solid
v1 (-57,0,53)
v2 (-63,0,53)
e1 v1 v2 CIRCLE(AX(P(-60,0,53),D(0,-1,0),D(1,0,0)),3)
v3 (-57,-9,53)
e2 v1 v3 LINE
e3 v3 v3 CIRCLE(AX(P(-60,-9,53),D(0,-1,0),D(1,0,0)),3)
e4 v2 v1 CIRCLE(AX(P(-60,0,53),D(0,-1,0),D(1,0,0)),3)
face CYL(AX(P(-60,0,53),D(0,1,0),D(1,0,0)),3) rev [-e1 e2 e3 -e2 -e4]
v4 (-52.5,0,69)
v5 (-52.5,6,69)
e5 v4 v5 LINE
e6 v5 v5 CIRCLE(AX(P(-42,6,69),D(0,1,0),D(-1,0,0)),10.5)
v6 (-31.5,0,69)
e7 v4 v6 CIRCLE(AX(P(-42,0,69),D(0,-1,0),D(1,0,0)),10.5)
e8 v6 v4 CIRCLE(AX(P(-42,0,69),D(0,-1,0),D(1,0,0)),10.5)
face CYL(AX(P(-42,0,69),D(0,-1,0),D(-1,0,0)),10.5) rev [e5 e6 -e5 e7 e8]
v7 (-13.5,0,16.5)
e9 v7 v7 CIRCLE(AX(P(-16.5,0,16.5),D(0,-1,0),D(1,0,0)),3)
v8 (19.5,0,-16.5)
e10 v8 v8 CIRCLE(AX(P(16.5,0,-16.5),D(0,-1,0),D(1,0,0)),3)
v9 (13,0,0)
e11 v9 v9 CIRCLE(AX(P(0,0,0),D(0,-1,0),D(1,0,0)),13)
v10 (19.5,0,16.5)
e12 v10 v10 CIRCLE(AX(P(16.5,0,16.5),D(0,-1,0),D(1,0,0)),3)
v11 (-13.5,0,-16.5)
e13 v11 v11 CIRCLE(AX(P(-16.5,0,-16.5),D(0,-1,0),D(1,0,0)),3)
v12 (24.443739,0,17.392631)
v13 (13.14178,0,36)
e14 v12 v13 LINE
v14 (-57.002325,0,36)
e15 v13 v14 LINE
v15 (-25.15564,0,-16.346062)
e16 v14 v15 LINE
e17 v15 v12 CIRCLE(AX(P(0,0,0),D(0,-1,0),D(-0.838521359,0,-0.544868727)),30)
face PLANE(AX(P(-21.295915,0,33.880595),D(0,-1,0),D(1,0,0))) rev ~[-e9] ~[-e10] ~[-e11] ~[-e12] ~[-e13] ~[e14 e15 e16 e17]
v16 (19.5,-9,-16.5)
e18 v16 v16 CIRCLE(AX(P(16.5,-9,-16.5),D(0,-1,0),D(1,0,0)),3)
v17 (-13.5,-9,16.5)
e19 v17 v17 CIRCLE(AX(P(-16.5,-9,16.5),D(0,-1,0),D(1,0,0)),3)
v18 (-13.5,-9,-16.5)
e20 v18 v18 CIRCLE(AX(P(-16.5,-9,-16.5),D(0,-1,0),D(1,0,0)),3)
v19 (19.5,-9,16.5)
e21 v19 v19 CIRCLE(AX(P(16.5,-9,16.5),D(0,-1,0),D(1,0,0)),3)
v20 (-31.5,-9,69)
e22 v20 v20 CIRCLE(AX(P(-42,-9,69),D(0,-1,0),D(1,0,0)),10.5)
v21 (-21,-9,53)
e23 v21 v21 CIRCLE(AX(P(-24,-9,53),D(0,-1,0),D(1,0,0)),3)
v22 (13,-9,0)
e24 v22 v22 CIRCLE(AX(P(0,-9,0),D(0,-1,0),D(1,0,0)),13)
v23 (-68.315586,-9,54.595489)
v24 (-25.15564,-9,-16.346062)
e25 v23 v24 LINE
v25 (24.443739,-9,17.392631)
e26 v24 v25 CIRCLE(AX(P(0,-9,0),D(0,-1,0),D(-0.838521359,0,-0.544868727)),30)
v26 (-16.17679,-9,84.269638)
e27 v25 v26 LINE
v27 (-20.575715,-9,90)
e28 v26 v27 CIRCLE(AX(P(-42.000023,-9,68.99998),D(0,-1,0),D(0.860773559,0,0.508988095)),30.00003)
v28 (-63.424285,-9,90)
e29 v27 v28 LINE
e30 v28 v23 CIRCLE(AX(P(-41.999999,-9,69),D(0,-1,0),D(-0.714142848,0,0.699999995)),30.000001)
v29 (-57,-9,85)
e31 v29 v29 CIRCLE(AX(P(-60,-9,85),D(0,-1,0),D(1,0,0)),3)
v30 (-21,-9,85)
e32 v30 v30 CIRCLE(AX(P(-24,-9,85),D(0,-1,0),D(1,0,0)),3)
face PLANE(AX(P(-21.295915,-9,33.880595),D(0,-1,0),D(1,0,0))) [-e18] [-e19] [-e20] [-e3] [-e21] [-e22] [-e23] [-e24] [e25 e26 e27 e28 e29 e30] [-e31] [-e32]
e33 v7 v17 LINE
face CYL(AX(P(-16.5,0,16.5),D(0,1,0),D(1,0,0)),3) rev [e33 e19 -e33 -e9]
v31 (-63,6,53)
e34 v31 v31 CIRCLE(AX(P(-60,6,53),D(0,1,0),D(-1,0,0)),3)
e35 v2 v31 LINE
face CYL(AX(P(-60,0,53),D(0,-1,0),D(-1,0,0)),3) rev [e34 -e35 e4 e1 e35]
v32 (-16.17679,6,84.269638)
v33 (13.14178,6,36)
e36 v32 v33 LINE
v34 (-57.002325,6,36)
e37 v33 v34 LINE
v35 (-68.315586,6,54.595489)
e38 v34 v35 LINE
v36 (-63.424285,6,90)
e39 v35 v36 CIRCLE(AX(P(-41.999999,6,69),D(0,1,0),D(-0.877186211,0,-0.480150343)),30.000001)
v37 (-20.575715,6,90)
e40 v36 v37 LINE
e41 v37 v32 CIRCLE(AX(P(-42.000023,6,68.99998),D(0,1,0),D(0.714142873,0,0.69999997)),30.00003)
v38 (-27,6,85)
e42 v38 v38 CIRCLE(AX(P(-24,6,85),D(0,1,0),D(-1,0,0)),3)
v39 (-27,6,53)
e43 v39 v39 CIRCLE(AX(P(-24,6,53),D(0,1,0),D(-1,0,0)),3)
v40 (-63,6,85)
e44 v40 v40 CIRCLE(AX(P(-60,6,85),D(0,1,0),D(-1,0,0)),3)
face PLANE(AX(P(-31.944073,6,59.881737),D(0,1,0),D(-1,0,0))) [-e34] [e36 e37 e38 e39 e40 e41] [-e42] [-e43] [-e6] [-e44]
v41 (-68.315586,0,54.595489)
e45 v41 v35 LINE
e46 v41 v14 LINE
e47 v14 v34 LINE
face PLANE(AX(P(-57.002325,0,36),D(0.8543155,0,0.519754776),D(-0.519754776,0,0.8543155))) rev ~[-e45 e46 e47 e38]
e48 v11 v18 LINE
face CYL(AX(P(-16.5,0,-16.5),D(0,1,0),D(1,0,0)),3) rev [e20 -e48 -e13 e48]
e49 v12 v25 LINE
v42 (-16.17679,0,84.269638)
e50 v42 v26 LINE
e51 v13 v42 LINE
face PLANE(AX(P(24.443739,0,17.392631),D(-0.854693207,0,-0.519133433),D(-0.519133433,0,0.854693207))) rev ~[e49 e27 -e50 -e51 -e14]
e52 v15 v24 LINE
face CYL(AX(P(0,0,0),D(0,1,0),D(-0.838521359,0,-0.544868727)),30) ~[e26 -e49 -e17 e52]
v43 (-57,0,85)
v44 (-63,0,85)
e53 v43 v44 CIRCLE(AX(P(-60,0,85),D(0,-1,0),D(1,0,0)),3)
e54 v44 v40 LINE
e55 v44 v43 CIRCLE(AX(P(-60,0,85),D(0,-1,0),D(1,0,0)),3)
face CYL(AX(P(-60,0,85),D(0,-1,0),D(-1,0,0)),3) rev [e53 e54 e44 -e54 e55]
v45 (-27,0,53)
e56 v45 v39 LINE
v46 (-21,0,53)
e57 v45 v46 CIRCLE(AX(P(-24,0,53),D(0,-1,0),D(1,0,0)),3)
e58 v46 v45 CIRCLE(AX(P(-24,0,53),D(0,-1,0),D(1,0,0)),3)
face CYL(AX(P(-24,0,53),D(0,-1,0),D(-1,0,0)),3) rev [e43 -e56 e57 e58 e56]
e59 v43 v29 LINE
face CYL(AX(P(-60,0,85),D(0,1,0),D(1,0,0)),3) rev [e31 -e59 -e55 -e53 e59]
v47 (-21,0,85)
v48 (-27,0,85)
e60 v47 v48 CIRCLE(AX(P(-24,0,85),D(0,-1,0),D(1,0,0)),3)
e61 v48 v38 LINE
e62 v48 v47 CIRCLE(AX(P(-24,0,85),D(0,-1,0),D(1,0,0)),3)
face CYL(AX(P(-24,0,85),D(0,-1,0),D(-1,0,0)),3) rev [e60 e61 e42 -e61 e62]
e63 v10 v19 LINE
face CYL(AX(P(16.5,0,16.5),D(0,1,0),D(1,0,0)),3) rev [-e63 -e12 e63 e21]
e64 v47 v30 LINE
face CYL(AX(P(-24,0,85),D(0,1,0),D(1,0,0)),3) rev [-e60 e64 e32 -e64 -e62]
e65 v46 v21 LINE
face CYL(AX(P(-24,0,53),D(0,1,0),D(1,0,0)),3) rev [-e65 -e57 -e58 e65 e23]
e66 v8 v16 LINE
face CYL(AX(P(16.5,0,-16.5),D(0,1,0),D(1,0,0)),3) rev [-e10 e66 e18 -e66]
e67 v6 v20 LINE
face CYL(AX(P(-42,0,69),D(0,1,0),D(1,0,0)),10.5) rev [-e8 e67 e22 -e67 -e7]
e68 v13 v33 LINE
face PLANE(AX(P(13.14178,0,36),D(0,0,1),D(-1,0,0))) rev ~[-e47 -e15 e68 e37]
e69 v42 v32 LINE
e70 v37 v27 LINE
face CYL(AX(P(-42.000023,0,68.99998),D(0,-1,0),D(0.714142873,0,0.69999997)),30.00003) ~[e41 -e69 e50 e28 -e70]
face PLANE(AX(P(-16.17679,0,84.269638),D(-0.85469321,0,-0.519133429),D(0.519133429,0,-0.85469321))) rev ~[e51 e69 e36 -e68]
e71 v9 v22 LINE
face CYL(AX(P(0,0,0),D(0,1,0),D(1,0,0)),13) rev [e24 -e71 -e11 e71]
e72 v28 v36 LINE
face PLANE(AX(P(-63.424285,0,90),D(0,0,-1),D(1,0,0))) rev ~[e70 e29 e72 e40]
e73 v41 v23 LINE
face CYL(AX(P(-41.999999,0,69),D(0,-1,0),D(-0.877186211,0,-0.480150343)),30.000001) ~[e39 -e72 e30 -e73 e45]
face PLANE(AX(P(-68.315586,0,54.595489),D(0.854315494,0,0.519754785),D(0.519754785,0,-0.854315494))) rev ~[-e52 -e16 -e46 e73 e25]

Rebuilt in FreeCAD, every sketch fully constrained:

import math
import FreeCAD as App
import Part
import Sketcher

V = App.Vector

doc = App.newDocument("Part")
body = doc.addObject("PartDesign::Body", "Body")

# Sketch on XZ plane
sketch1 = doc.addObject("Sketcher::SketchObject", "Sketch")
body.addObject(sketch1)
sketch1.AttachmentSupport = (doc.XZ_Plane, [""])
sketch1.MapMode = "FlatFace"
sketch1.addGeometry([
    Part.LineSegment(V(-68.3, 54.6, 0), V(-25.2, -16.3, 0)),  # 0
    Part.ArcOfCircle(Part.Circle(V(0, 0, 0), V(0, 0, 1), 30), math.radians(-147), math.radians(35)),  # 1
    Part.LineSegment(V(24.4, 17.4, 0), V(-16.2, 84.3, 0)),  # 2
    Part.ArcOfCircle(Part.Circle(V(-42, 69, 0), V(0, 0, 1), 30), math.radians(30.6), math.radians(44.43)),  # 3
    Part.LineSegment(V(-20.6, 90, 0), V(-63.4, 90, 0)),  # 4
    Part.ArcOfCircle(Part.Circle(V(-42, 69, 0), V(0, 0, 1), 30), math.radians(136), math.radians(209)),  # 5
    Part.Circle(V(-16.5, -16.5, 0), V(0, 0, 1), 3),  # 6
    Part.Circle(V(16.5, -16.5, 0), V(0, 0, 1), 3),  # 7
    Part.Circle(V(0, 0, 0), V(0, 0, 1), 13),  # 8
    Part.Circle(V(-16.5, 16.5, 0), V(0, 0, 1), 3),  # 9
    Part.Circle(V(16.5, 16.5, 0), V(0, 0, 1), 3),  # 10
    Part.Circle(V(-60, 53, 0), V(0, 0, 1), 3),  # 11
    Part.Circle(V(-24, 53, 0), V(0, 0, 1), 3),  # 12
    Part.Circle(V(-60, 85, 0), V(0, 0, 1), 3),  # 13
    Part.Circle(V(-42, 69, 0), V(0, 0, 1), 10.5),  # 14
    Part.Circle(V(-24, 85, 0), V(0, 0, 1), 3),  # 15
], False)
sketch1.addConstraint([
    Sketcher.Constraint("Coincident", 0, 2, 1, 1),
    Sketcher.Constraint("Coincident", 1, 2, 2, 1),
    Sketcher.Constraint("Coincident", 2, 2, 3, 1),
    Sketcher.Constraint("Coincident", 3, 2, 4, 1),
    Sketcher.Constraint("Coincident", 4, 2, 5, 1),
    Sketcher.Constraint("Coincident", 5, 2, 0, 1),
    Sketcher.Constraint("Horizontal", 4),
    Sketcher.Constraint("Coincident", 1, 3, -1, 1),
    Sketcher.Constraint("Coincident", 8, 3, -1, 1),
    Sketcher.Constraint("Coincident", 14, 3, 5, 3),
    Sketcher.Constraint("Equal", 1, 5),
    Sketcher.Constraint("Equal", 6, 7),
    Sketcher.Constraint("Equal", 7, 9),
    Sketcher.Constraint("Equal", 9, 10),
    Sketcher.Constraint("Equal", 10, 11),
    Sketcher.Constraint("Equal", 11, 12),
    Sketcher.Constraint("Equal", 12, 13),
    Sketcher.Constraint("Equal", 13, 15),
    Sketcher.Constraint("Symmetric", 7, 3, 9, 3, -1, 1),
    Sketcher.Constraint("Symmetric", 6, 3, 10, 3, -1, 1),
    Sketcher.Constraint("Symmetric", 6, 3, 7, 3, -2),
    Sketcher.Constraint("Horizontal", 11, 3, 12, 3),
    Sketcher.Constraint("Horizontal", 13, 3, 15, 3),
    Sketcher.Constraint("Vertical", 11, 3, 13, 3),
    Sketcher.Constraint("Vertical", 12, 3, 15, 3),
    Sketcher.Constraint("Diameter", 6, 6.0),
    Sketcher.Constraint("Diameter", 8, 26.0),
    Sketcher.Constraint("Diameter", 14, 21.0),
    Sketcher.Constraint("Radius", 1, 30.0),
    Sketcher.Constraint("DistanceX", 5, 3, -1, 1, 41.999999),
    Sketcher.Constraint("DistanceY", -1, 1, 5, 3, 69.0),
    Sketcher.Constraint("DistanceX", 11, 3, -1, 1, 60.0),
    Sketcher.Constraint("DistanceY", -1, 1, 11, 3, 53.0),
    Sketcher.Constraint("DistanceX", 12, 3, -1, 1, 24.0),
    Sketcher.Constraint("DistanceY", -1, 1, 13, 3, 85.0),
    Sketcher.Constraint("DistanceY", -1, 1, 3, 2, 90.0),
    Sketcher.Constraint("DistanceX", 6, 3, 7, 3, 33.0),
    Sketcher.Constraint("DistanceY", 6, 3, 9, 3, 33.0),
    Sketcher.Constraint("Radius", 3, 30.00003),
    Sketcher.Constraint("Distance", 2, 78.246798),
    Sketcher.Constraint("DistanceX", 4, 2, 4, 1, 42.84857),
    Sketcher.Constraint("DistanceY", -1, 1, 3, 3, 68.99998),
    Sketcher.Constraint("DistanceX", 0, 2, -1, 1, 25.15564),
    Sketcher.Constraint("DistanceX", -1, 1, 1, 2, 24.443739),
    Sketcher.Constraint("DistanceY", -1, 1, 5, 2, 54.595489),
])
pad1 = doc.addObject("PartDesign::Pad", "Pad")
body.addObject(pad1)
pad1.Profile = sketch1
pad1.Length = 9

# Sketch on XZ plane
sketch2 = doc.addObject("Sketcher::SketchObject", "Sketch001")
body.addObject(sketch2)
sketch2.AttachmentSupport = (doc.XZ_Plane, [""])
sketch2.MapMode = "FlatFace"
sketch2.addGeometry([
    Part.LineSegment(V(13.1, 36, 0), V(-57, 36, 0)),  # 0
    Part.LineSegment(V(-57, 36, 0), V(-68.3, 54.6, 0)),  # 1
    Part.ArcOfCircle(Part.Circle(V(-42, 69, 0), V(0, 0, 1), 30), math.radians(136), math.radians(209)),  # 2
    Part.LineSegment(V(-63.4, 90, 0), V(-20.6, 90, 0)),  # 3
    Part.ArcOfCircle(Part.Circle(V(-42, 69, 0), V(0, 0, 1), 30), math.radians(30.6), math.radians(44.43)),  # 4
    Part.LineSegment(V(-16.2, 84.3, 0), V(13.1, 36, 0)),  # 5
    Part.Circle(V(-24, 53, 0), V(0, 0, 1), 3),  # 6
    Part.Circle(V(-60, 53, 0), V(0, 0, 1), 3),  # 7
    Part.Circle(V(-24, 85, 0), V(0, 0, 1), 3),  # 8
    Part.Circle(V(-42, 69, 0), V(0, 0, 1), 10.5),  # 9
    Part.Circle(V(-60, 85, 0), V(0, 0, 1), 3),  # 10
], False)
sketch2.addConstraint([
    Sketcher.Constraint("Coincident", 0, 2, 1, 1),
    Sketcher.Constraint("Coincident", 1, 2, 2, 2),
    Sketcher.Constraint("Coincident", 2, 1, 3, 1),
    Sketcher.Constraint("Coincident", 3, 2, 4, 2),
    Sketcher.Constraint("Coincident", 4, 1, 5, 1),
    Sketcher.Constraint("Coincident", 5, 2, 0, 1),
    Sketcher.Constraint("Horizontal", 0),
    Sketcher.Constraint("Horizontal", 3),
    Sketcher.Constraint("Coincident", 9, 3, 2, 3),
    Sketcher.Constraint("Equal", 6, 7),
    Sketcher.Constraint("Equal", 7, 8),
    Sketcher.Constraint("Equal", 8, 10),
    Sketcher.Constraint("Horizontal", 6, 3, 7, 3),
    Sketcher.Constraint("Horizontal", 8, 3, 10, 3),
    Sketcher.Constraint("Vertical", 6, 3, 8, 3),
    Sketcher.Constraint("Vertical", 7, 3, 10, 3),
    Sketcher.Constraint("Diameter", 6, 6.0),
    Sketcher.Constraint("Diameter", 9, 21.0),
    Sketcher.Constraint("Radius", 2, 30.000001),
    Sketcher.Constraint("DistanceX", 2, 3, -1, 1, 41.999999),
    Sketcher.Constraint("DistanceY", -1, 1, 2, 3, 69.0),
    Sketcher.Constraint("DistanceX", 6, 3, -1, 1, 24.0),
    Sketcher.Constraint("DistanceY", -1, 1, 6, 3, 53.0),
    Sketcher.Constraint("DistanceX", 7, 3, -1, 1, 60.0),
    Sketcher.Constraint("DistanceY", -1, 1, 8, 3, 85.0),
    Sketcher.Constraint("DistanceY", -1, 1, 0, 2, 36.0),
    Sketcher.Constraint("DistanceY", -1, 1, 2, 1, 90.0),
    Sketcher.Constraint("Radius", 4, 30.00003),
    Sketcher.Constraint("DistanceX", 3, 1, 3, 2, 42.84857),
    Sketcher.Constraint("DistanceX", 1, 2, 2, 1, 4.891301),
    Sketcher.Constraint("Distance", 5, 56.475982),
    Sketcher.Constraint("DistanceX", 0, 2, 0, 1, 70.144105),
    Sketcher.Constraint("DistanceY", -1, 1, 4, 3, 68.99998),
    Sketcher.Constraint("DistanceX", 4, 1, -1, 1, 16.17679),
])
pad2 = doc.addObject("PartDesign::Pad", "Pad001")
body.addObject(pad2)
pad2.Profile = sketch2
pad2.Length = 6
pad2.Reversed = True

doc.recompute()
